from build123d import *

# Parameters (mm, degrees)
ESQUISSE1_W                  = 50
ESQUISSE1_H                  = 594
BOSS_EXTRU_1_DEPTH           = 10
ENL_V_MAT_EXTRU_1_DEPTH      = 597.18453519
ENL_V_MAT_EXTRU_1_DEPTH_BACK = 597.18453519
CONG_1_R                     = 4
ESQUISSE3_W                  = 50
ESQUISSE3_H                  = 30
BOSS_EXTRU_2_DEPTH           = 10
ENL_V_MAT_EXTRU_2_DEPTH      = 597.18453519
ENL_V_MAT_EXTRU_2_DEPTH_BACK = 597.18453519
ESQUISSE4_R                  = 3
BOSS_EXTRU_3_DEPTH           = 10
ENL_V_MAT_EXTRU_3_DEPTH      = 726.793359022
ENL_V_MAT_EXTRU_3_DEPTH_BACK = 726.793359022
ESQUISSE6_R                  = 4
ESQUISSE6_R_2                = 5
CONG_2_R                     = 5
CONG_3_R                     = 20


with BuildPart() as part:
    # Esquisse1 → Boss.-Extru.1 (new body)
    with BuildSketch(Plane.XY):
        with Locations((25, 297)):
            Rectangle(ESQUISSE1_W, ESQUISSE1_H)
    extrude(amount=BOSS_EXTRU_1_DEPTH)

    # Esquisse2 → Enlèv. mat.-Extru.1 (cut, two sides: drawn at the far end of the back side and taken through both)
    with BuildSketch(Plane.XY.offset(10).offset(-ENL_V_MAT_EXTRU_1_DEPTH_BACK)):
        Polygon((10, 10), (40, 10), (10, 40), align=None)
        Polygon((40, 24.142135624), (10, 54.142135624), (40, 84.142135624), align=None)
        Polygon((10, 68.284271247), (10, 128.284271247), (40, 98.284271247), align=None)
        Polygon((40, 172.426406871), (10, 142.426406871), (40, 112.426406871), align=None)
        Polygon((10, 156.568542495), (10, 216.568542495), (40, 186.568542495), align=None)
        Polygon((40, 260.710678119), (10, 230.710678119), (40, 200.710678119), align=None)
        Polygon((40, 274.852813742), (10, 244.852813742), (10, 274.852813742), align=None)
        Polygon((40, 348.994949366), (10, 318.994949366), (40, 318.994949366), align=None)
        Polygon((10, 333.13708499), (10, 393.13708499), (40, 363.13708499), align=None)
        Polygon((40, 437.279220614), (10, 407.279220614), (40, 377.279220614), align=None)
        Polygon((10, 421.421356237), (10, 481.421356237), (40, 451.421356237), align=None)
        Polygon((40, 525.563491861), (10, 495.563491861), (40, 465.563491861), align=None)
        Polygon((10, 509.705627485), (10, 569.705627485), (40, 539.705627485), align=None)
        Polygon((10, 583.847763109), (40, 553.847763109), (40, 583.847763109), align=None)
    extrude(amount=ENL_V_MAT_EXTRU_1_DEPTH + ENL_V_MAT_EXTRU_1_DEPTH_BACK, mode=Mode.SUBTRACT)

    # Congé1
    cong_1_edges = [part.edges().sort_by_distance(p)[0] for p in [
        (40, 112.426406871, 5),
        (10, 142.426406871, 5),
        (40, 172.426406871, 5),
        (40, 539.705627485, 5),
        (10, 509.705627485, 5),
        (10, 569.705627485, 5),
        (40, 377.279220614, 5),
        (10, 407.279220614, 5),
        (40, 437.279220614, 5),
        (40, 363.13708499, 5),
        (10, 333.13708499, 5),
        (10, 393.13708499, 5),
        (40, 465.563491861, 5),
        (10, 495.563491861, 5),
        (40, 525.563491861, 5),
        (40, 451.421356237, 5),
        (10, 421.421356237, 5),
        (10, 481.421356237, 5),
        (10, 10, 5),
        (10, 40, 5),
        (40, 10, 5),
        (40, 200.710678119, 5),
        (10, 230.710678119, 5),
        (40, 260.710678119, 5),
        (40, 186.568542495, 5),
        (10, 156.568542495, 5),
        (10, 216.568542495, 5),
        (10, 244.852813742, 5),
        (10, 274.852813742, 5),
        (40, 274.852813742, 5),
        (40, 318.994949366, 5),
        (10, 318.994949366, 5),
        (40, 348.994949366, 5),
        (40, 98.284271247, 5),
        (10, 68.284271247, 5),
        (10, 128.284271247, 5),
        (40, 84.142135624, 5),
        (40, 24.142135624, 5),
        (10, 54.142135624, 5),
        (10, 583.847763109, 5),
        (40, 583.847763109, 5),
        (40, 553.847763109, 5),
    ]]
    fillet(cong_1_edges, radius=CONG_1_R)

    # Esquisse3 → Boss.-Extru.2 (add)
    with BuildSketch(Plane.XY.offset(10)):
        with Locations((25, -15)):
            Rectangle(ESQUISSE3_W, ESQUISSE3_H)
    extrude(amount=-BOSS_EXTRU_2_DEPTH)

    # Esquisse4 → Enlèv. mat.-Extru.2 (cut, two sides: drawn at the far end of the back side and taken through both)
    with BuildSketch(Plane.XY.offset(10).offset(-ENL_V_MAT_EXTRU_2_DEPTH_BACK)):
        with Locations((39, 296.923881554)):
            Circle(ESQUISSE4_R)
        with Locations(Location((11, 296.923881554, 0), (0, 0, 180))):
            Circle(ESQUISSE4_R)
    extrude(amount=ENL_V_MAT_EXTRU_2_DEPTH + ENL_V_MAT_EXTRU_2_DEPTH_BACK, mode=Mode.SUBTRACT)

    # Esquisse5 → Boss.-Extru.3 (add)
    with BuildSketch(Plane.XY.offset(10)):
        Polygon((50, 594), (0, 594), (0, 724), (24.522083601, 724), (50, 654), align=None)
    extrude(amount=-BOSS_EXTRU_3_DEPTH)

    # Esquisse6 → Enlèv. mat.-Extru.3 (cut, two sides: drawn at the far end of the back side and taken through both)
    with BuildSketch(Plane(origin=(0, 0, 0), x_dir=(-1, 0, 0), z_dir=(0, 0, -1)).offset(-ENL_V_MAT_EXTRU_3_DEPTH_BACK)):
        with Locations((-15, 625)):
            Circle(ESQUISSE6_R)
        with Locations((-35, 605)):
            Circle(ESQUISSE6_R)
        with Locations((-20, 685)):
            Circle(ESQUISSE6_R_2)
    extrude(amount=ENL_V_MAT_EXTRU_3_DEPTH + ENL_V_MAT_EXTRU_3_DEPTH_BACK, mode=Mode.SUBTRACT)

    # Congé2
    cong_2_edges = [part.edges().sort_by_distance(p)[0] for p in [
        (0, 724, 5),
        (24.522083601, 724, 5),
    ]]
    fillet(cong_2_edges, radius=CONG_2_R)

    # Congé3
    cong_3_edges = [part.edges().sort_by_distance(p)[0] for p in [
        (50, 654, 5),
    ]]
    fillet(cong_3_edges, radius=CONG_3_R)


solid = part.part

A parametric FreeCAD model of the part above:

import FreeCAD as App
import Part
import Sketcher
Q = App.Units.Quantity


def edges_at(feature, points):
    """Names of the edges that pass closest to the given points."""
    edges = feature.Shape.Edges
    near = lambda p: min(range(len(edges)), key=lambda i: edges[i].distToShape(Part.Vertex(*p))[0])
    return sorted({f"Edge{near(p) + 1}" for p in points})


def add_polygon(sketch, points):
    """Adds a closed chain of lines whose ends are joined by coincident constraints."""
    first, n = sketch.GeometryCount, len(points)
    for a, b in zip(points, points[1:] + points[:1]):
        sketch.addGeometry(Part.LineSegment(App.Vector(*a, 0), App.Vector(*b, 0)), False)
    for i in range(n):
        sketch.addConstraint(Sketcher.Constraint("Coincident", first + i, 2, first + (i + 1) % n, 1))

doc = App.newDocument("Part")
body = doc.addObject("PartDesign::Body", "Body")

# Sketch on XY plane
sketch1 = body.newObject("Sketcher::SketchObject", "Sketch")
sketch1.AttachmentSupport = (doc.getObject("XY_Plane"), [""])
sketch1.MapMode = "FlatFace"
add_polygon(sketch1, [(0, 594), (0, 0), (50, 0), (50, 594)])  # lines 0-3
sketch1.addConstraint(Sketcher.Constraint("Vertical", 0))
sketch1.addConstraint(Sketcher.Constraint("Horizontal", 1))
sketch1.addConstraint(Sketcher.Constraint("Vertical", 2))
sketch1.addConstraint(Sketcher.Constraint("Horizontal", 3))
sketch1.addConstraint(Sketcher.Constraint("Coincident", 0, 2, -1, 1))
sketch1.addConstraint(Sketcher.Constraint("DistanceX", 1, 1, 1, 2, 50.0))
sketch1.addConstraint(Sketcher.Constraint("DistanceY", 0, 2, 0, 1, 594.0))
pad1 = body.newObject("PartDesign::Pad", "Pad")
pad1.Profile = sketch1
pad1.Length = 10

# Sketch on XY plane
sketch2 = body.newObject("Sketcher::SketchObject", "Sketch001")
sketch2.AttachmentSupport = (doc.getObject("XY_Plane"), [""])
sketch2.MapMode = "FlatFace"
sketch2.AttachmentOffset = App.Placement(App.Vector(0, 0, 10), App.Rotation())
add_polygon(sketch2, [(10, 10), (40, 10), (10, 40)])  # lines 0-2
add_polygon(sketch2, [(10, 54.142136), (40, 24.142136), (40, 84.142136)])  # lines 3-5
add_polygon(sketch2, [(10, 128.284271), (10, 68.284271), (40, 98.284271)])  # lines 6-8
add_polygon(sketch2, [(40, 172.426407), (10, 142.426407), (40, 112.426407)])  # lines 9-11
add_polygon(sketch2, [(10, 216.568542), (10, 156.568542), (40, 186.568542)])  # lines 12-14
add_polygon(sketch2, [(40, 260.710678), (10, 230.710678), (40, 200.710678)])  # lines 15-17
add_polygon(sketch2, [(10, 244.852814), (40, 274.852814), (10, 274.852814)])  # lines 18-20
add_polygon(sketch2, [(40, 348.994949), (10, 318.994949), (40, 318.994949)])  # lines 21-23
add_polygon(sketch2, [(10, 393.137085), (10, 333.137085), (40, 363.137085)])  # lines 24-26
add_polygon(sketch2, [(40, 437.279221), (10, 407.279221), (40, 377.279221)])  # lines 27-29
add_polygon(sketch2, [(10, 481.421356), (10, 421.421356), (40, 451.421356)])  # lines 30-32
add_polygon(sketch2, [(40, 525.563492), (10, 495.563492), (40, 465.563492)])  # lines 33-35
add_polygon(sketch2, [(10, 569.705627), (10, 509.705627), (40, 539.705627)])  # lines 36-38
add_polygon(sketch2, [(10, 583.847763), (40, 553.847763), (40, 583.847763)])  # lines 39-41
sketch2.addConstraint(Sketcher.Constraint("Horizontal", 0))
sketch2.addConstraint(Sketcher.Constraint("Vertical", 2))
sketch2.addConstraint(Sketcher.Constraint("Vertical", 4))
sketch2.addConstraint(Sketcher.Constraint("Vertical", 6))
sketch2.addConstraint(Sketcher.Constraint("Vertical", 11))
sketch2.addConstraint(Sketcher.Constraint("Vertical", 12))
sketch2.addConstraint(Sketcher.Constraint("Vertical", 17))
sketch2.addConstraint(Sketcher.Constraint("Horizontal", 19))
sketch2.addConstraint(Sketcher.Constraint("Vertical", 20))
sketch2.addConstraint(Sketcher.Constraint("Horizontal", 22))
sketch2.addConstraint(Sketcher.Constraint("Vertical", 23))
sketch2.addConstraint(Sketcher.Constraint("Vertical", 24))
sketch2.addConstraint(Sketcher.Constraint("Vertical", 29))
sketch2.addConstraint(Sketcher.Constraint("Vertical", 30))
sketch2.addConstraint(Sketcher.Constraint("Vertical", 35))
sketch2.addConstraint(Sketcher.Constraint("Vertical", 36))
sketch2.addConstraint(Sketcher.Constraint("Vertical", 40))
sketch2.addConstraint(Sketcher.Constraint("Horizontal", 41))
sketch2.addConstraint(Sketcher.Constraint("Parallel", 1, 3))
sketch2.addConstraint(Sketcher.Constraint("Perpendicular", 3, 5))
sketch2.addConstraint(Sketcher.Constraint("Parallel", 5, 7))
sketch2.addConstraint(Sketcher.Constraint("Perpendicular", 7, 8))
sketch2.addConstraint(Sketcher.Constraint("Perpendicular", 8, 9))
sketch2.addConstraint(Sketcher.Constraint("Perpendicular", 9, 10))
sketch2.addConstraint(Sketcher.Constraint("Perpendicular", 10, 13))
sketch2.addConstraint(Sketcher.Constraint("Perpendicular", 13, 14))
sketch2.addConstraint(Sketcher.Constraint("Perpendicular", 14, 15))
sketch2.addConstraint(Sketcher.Constraint("Perpendicular", 15, 16))
sketch2.addConstraint(Sketcher.Constraint("Perpendicular", 16, 18))
sketch2.addConstraint(Sketcher.Constraint("Parallel", 18, 21))
sketch2.addConstraint(Sketcher.Constraint("Parallel", 21, 25))
sketch2.addConstraint(Sketcher.Constraint("Perpendicular", 25, 26))
sketch2.addConstraint(Sketcher.Constraint("Perpendicular", 26, 27))
sketch2.addConstraint(Sketcher.Constraint("Perpendicular", 27, 28))
sketch2.addConstraint(Sketcher.Constraint("Perpendicular", 28, 31))
sketch2.addConstraint(Sketcher.Constraint("Perpendicular", 31, 32))
sketch2.addConstraint(Sketcher.Constraint("Perpendicular", 32, 33))
sketch2.addConstraint(Sketcher.Constraint("Perpendicular", 33, 34))
sketch2.addConstraint(Sketcher.Constraint("Perpendicular", 34, 37))
sketch2.addConstraint(Sketcher.Constraint("Perpendicular", 37, 38))
sketch2.addConstraint(Sketcher.Constraint("Parallel", 38, 39))
sketch2.addConstraint(Sketcher.Constraint("Vertical", 0, 2, 3, 2))
sketch2.addConstraint(Sketcher.Constraint("Vertical", 2, 2, 5, 2))
sketch2.addConstraint(Sketcher.Constraint("Vertical", 5, 2, 6, 2))
sketch2.addConstraint(Sketcher.Constraint("Vertical", 4, 2, 7, 2))
sketch2.addConstraint(Sketcher.Constraint("Vertical", 8, 2, 9, 2))
sketch2.addConstraint(Sketcher.Constraint("Vertical", 7, 2, 10, 2))
sketch2.addConstraint(Sketcher.Constraint("Vertical", 9, 2, 12, 2))
sketch2.addConstraint(Sketcher.Constraint("Vertical", 11, 2, 13, 2))
sketch2.addConstraint(Sketcher.Constraint("Vertical", 14, 2, 15, 2))
sketch2.addConstraint(Sketcher.Constraint("Vertical", 13, 2, 16, 2))
sketch2.addConstraint(Sketcher.Constraint("Vertical", 17, 2, 18, 2))
sketch2.addConstraint(Sketcher.Constraint("Vertical", 15, 2, 19, 2))
sketch2.addConstraint(Sketcher.Constraint("Vertical", 20, 2, 21, 2))
sketch2.addConstraint(Sketcher.Constraint("Vertical", 18, 2, 22, 2))
sketch2.addConstraint(Sketcher.Constraint("Vertical", 21, 2, 24, 2))
sketch2.addConstraint(Sketcher.Constraint("Vertical", 23, 2, 25, 2))
sketch2.addConstraint(Sketcher.Constraint("Vertical", 26, 2, 27, 2))
sketch2.addConstraint(Sketcher.Constraint("Vertical", 25, 2, 28, 2))
sketch2.addConstraint(Sketcher.Constraint("Vertical", 27, 2, 30, 2))
sketch2.addConstraint(Sketcher.Constraint("Vertical", 29, 2, 31, 2))
sketch2.addConstraint(Sketcher.Constraint("Vertical", 32, 2, 33, 2))
sketch2.addConstraint(Sketcher.Constraint("Vertical", 31, 2, 34, 2))
sketch2.addConstraint(Sketcher.Constraint("Vertical", 33, 2, 36, 2))
sketch2.addConstraint(Sketcher.Constraint("Vertical", 35, 2, 37, 2))
sketch2.addConstraint(Sketcher.Constraint("Vertical", 37, 2, 39, 2))
sketch2.addConstraint(Sketcher.Constraint("Vertical", 38, 2, 41, 2))
sketch2.addConstraint(Sketcher.Constraint("Equal", 41, 2))
sketch2.addConstraint(Sketcher.Constraint("DistanceX", 0, 1, 0, 2, 30.0))
sketch2.addConstraint(Sketcher.Constraint("DistanceX", -1, 1, 0, 2, 40.0))
sketch2.addConstraint(Sketcher.Constraint("DistanceY", -1, 1, 0, 2, 10.0))
sketch2.addConstraint(Sketcher.Constraint("DistanceY", -1, 1, 6, 2, 68.284271))
sketch2.addConstraint(Sketcher.Constraint("DistanceY", -1, 1, 15, 2, 230.710678))
sketch2.addConstraint(Sketcher.Constraint("DistanceY", -1, 1, 21, 2, 318.994949))
sketch2.addConstraint(Sketcher.Constraint("DistanceY", -1, 1, 27, 2, 407.279221))
sketch2.addConstraint(Sketcher.Constraint("DistanceY", -1, 1, 33, 2, 495.563492))
sketch2.addConstraint(Sketcher.Constraint("DistanceY", 4, 2, 9, 2, 58.284271))
sketch2.addConstraint(Sketcher.Constraint("DistanceY", 8, 2, 12, 2, 28.284271))
sketch2.addConstraint(Sketcher.Constraint("DistanceY", 11, 2, 15, 2, 58.284271))
sketch2.addConstraint(Sketcher.Constraint("DistanceY", 14, 2, 18, 2, 58.284271))
sketch2.addConstraint(Sketcher.Constraint("DistanceY", 19, 2, 24, 2, 58.284271))
sketch2.addConstraint(Sketcher.Constraint("DistanceY", 26, 2, 30, 2, 28.284271))
sketch2.addConstraint(Sketcher.Constraint("DistanceY", 32, 2, 36, 2, 28.284271))
sketch2.addConstraint(Sketcher.Constraint("DistanceY", 35, 2, 39, 2, 28.284271))
pocket1 = body.newObject("PartDesign::Pocket", "Pocket")
pocket1.Profile = sketch2
pocket1.Type = "ThroughAll"
pocket1.Midplane = True
doc.recompute()

fillet = body.newObject("PartDesign::Fillet", "Fillet")
fillet.Base = (pocket1, edges_at(pocket1, [
    (40, 112.426, 5),
    (10, 142.426, 5),
    (40, 172.426, 5),
    (40, 539.706, 5),
    (10, 509.706, 5),
    (10, 569.706, 5),
    (40, 377.279, 5),
    (10, 407.279, 5),
    (40, 437.279, 5),
    (40, 363.137, 5),
    (10, 333.137, 5),
    (10, 393.137, 5),
    (40, 465.563, 5),
    (10, 495.563, 5),
    (40, 525.563, 5),
    (40, 451.421, 5),
    (10, 421.421, 5),
    (10, 481.421, 5),
    (10, 10, 5),
    (10, 40, 5),
    (40, 10, 5),
    (40, 200.711, 5),
    (10, 230.711, 5),
    (40, 260.711, 5),
    (40, 186.569, 5),
    (10, 156.569, 5),
    (10, 216.569, 5),
    (10, 244.853, 5),
    (10, 274.853, 5),
    (40, 274.853, 5),
    (40, 318.995, 5),
    (10, 318.995, 5),
    (40, 348.995, 5),
    (40, 98.284, 5),
    (10, 68.284, 5),
    (10, 128.284, 5),
    (40, 84.142, 5),
    (40, 24.142, 5),
    (10, 54.142, 5),
    (10, 583.848, 5),
    (40, 583.848, 5),
    (40, 553.848, 5),
]))
fillet.Radius = 4

# Sketch on XY plane
sketch3 = body.newObject("Sketcher::SketchObject", "Sketch002")
sketch3.AttachmentSupport = (doc.getObject("XY_Plane"), [""])
sketch3.MapMode = "FlatFace"
sketch3.AttachmentOffset = App.Placement(App.Vector(0, 0, 10), App.Rotation())
add_polygon(sketch3, [(0, 0), (0, -30), (50, -30), (50, 0)])  # lines 0-3
sketch3.addConstraint(Sketcher.Constraint("Vertical", 0))
sketch3.addConstraint(Sketcher.Constraint("Horizontal", 1))
sketch3.addConstraint(Sketcher.Constraint("Vertical", 2))
sketch3.addConstraint(Sketcher.Constraint("Horizontal", 3))
sketch3.addConstraint(Sketcher.Constraint("Coincident", 3, 2, -1, 1))
sketch3.addConstraint(Sketcher.Constraint("DistanceX", 1, 1, 1, 2, 50.0))
sketch3.addConstraint(Sketcher.Constraint("DistanceY", 0, 2, 0, 1, 30.0))
pad2 = body.newObject("PartDesign::Pad", "Pad001")
pad2.Profile = sketch3
pad2.Length = 10
pad2.Reversed = True

# Sketch on XY plane
sketch4 = body.newObject("Sketcher::SketchObject", "Sketch003")
sketch4.AttachmentSupport = (doc.getObject("XY_Plane"), [""])
sketch4.MapMode = "FlatFace"
sketch4.AttachmentOffset = App.Placement(App.Vector(0, 0, 10), App.Rotation())
sketch4.addGeometry(Part.Circle(App.Vector(39, 296.923882, 0), App.Vector(0, 0, 1), 3), False)
sketch4.addGeometry(Part.Circle(App.Vector(11, 296.923882, 0), App.Vector(0, 0, 1), 3), False)
sketch4.addConstraint(Sketcher.Constraint("Equal", 0, 1))
sketch4.addConstraint(Sketcher.Constraint("Horizontal", 0, 3, 1, 3))
sketch4.addConstraint(Sketcher.Constraint("Diameter", 0, 6.0))
sketch4.addConstraint(Sketcher.Constraint("DistanceX", -1, 1, 0, 3, 39.0))
sketch4.addConstraint(Sketcher.Constraint("DistanceX", -1, 1, 1, 3, 11.0))
sketch4.addConstraint(Sketcher.Constraint("DistanceY", -1, 1, 0, 3, 296.923882))
pocket2 = body.newObject("PartDesign::Pocket", "Pocket001")
pocket2.Profile = sketch4
pocket2.Type = "ThroughAll"
pocket2.Midplane = True

# Sketch on XY plane
sketch5 = body.newObject("Sketcher::SketchObject", "Sketch004")
sketch5.AttachmentSupport = (doc.getObject("XY_Plane"), [""])
sketch5.MapMode = "FlatFace"
sketch5.AttachmentOffset = App.Placement(App.Vector(0, 0, 10), App.Rotation())
add_polygon(sketch5, [(0, 594), (50, 594), (50, 654), (24.522084, 724), (0, 724)])  # lines 0-4
sketch5.addConstraint(Sketcher.Constraint("Horizontal", 0))
sketch5.addConstraint(Sketcher.Constraint("Vertical", 1))
sketch5.addConstraint(Sketcher.Constraint("Horizontal", 3))
sketch5.addConstraint(Sketcher.Constraint("Vertical", 4))
sketch5.addConstraint(Sketcher.Constraint("PointOnObject", 3, 2, -2))
sketch5.addConstraint(Sketcher.Constraint("DistanceX", 0, 1, 0, 2, 50.0))
sketch5.addConstraint(Sketcher.Constraint("DistanceY", 1, 1, 1, 2, 60.0))
sketch5.addConstraint(Sketcher.Constraint("DistanceY", 4, 2, 4, 1, 130.0))
sketch5.addConstraint(Sketcher.Constraint("Angle", 2, Q("110 deg")))
sketch5.addConstraint(Sketcher.Constraint("DistanceY", -1, 1, 0, 2, 594.0))
pad3 = body.newObject("PartDesign::Pad", "Pad002")
pad3.Profile = sketch5
pad3.Length = 10
pad3.Reversed = True

# Sketch on XY plane
sketch6 = body.newObject("Sketcher::SketchObject", "Sketch005")
sketch6.AttachmentSupport = (doc.getObject("XY_Plane"), [""])
sketch6.MapMode = "FlatFace"
sketch6.addGeometry(Part.Circle(App.Vector(15, 625, 0), App.Vector(0, 0, 1), 4), False)
sketch6.addGeometry(Part.Circle(App.Vector(35, 605, 0), App.Vector(0, 0, 1), 4), False)
sketch6.addGeometry(Part.Circle(App.Vector(20, 685, 0), App.Vector(0, 0, 1), 5), False)
sketch6.addConstraint(Sketcher.Constraint("Equal", 0, 1))
sketch6.addConstraint(Sketcher.Constraint("Diameter", 0, 8.0))
sketch6.addConstraint(Sketcher.Constraint("Diameter", 2, 10.0))
sketch6.addConstraint(Sketcher.Constraint("DistanceX", -1, 1, 0, 3, 15.0))
sketch6.addConstraint(Sketcher.Constraint("DistanceY", -1, 1, 0, 3, 625.0))
sketch6.addConstraint(Sketcher.Constraint("DistanceX", -1, 1, 1, 3, 35.0))
sketch6.addConstraint(Sketcher.Constraint("DistanceY", -1, 1, 1, 3, 605.0))
sketch6.addConstraint(Sketcher.Constraint("DistanceX", -1, 1, 2, 3, 20.0))
sketch6.addConstraint(Sketcher.Constraint("DistanceY", -1, 1, 2, 3, 685.0))
pocket3 = body.newObject("PartDesign::Pocket", "Pocket002")
pocket3.Profile = sketch6
pocket3.Type = "ThroughAll"
pocket3.Midplane = True
doc.recompute()

fillet2 = body.newObject("PartDesign::Fillet", "Fillet001")
fillet2.Base = (pocket3, edges_at(pocket3, [(0, 724, 5), (24.522, 724, 5)]))
fillet2.Radius = 5
doc.recompute()

fillet3 = body.newObject("PartDesign::Fillet", "Fillet002")
fillet3.Base = (fillet2, edges_at(fillet2, [(50, 654, 5)]))
fillet3.Radius = 20

doc.recompute()
